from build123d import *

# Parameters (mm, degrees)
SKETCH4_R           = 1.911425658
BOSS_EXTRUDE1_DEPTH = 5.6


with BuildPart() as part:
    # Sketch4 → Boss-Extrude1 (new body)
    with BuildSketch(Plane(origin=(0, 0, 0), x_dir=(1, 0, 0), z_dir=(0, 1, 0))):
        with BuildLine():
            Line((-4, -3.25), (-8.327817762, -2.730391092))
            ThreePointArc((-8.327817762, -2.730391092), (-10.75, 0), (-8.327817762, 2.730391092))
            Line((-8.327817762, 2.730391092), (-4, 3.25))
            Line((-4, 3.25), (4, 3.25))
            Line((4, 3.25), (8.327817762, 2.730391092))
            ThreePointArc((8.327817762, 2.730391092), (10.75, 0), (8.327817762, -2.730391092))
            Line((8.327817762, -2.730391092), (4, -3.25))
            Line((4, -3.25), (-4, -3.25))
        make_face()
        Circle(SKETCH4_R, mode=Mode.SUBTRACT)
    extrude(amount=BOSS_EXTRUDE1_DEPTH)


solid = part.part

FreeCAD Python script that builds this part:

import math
import FreeCAD as App
import Part
import Sketcher

V = App.Vector

doc = App.newDocument("Part")
body = doc.addObject("PartDesign::Body", "Body")

sketch1 = doc.addObject("Sketcher::SketchObject", "Sketch")
body.addObject(sketch1)
sketch1.AttachmentSupport = (doc.XZ_Plane, [""])
sketch1.MapMode = "FlatFace"
sketch1.addGeometry(Part.LineSegment(V(-8.3, 2.7, 0), V(-4, 3.2, 0)), False)
sketch1.addGeometry(Part.LineSegment(V(-4, 3.2, 0), V(4, 3.2, 0)), False)
sketch1.addGeometry(Part.LineSegment(V(4, 3.2, 0), V(8.3, 2.7, 0)), False)
sketch1.addGeometry(Part.ArcOfCircle(Part.Circle(V(8, 0, 0), V(0, 0, 1), 2.8), math.radians(-83), math.radians(83)), False)
sketch1.addGeometry(Part.LineSegment(V(8.3, -2.7, 0), V(4, -3.2, 0)), False)
sketch1.addGeometry(Part.LineSegment(V(4, -3.2, 0), V(-4, -3.2, 0)), False)
sketch1.addGeometry(Part.LineSegment(V(-4, -3.2, 0), V(-8.3, -2.7, 0)), False)
sketch1.addGeometry(Part.ArcOfCircle(Part.Circle(V(-8, 0, 0), V(0, 0, 1), 2.8), math.radians(97), math.radians(263)), False)
sketch1.addGeometry(Part.Circle(V(0, 0, 0), V(0, 0, 1), 1.9), False)
sketch1.addConstraint(Sketcher.Constraint("Coincident", 0, 2, 1, 1))
sketch1.addConstraint(Sketcher.Constraint("Coincident", 1, 2, 2, 1))
sketch1.addConstraint(Sketcher.Constraint("Tangent", 2, 2, 3, 2))
sketch1.addConstraint(Sketcher.Constraint("Tangent", 3, 1, 4, 1))
sketch1.addConstraint(Sketcher.Constraint("Coincident", 4, 2, 5, 1))
sketch1.addConstraint(Sketcher.Constraint("Coincident", 5, 2, 6, 1))
sketch1.addConstraint(Sketcher.Constraint("Tangent", 6, 2, 7, 2))
sketch1.addConstraint(Sketcher.Constraint("Tangent", 7, 1, 0, 1))
sketch1.addConstraint(Sketcher.Constraint("Horizontal", 1))
sketch1.addConstraint(Sketcher.Constraint("Horizontal", 5))
sketch1.addConstraint(Sketcher.Constraint("Coincident", 8, 3, -1, 1))
sketch1.addConstraint(Sketcher.Constraint("Equal", 3, 7))
sketch1.addConstraint(Sketcher.Constraint("Symmetric", 3, 3, 7, 3, -1, 1))
sketch1.addConstraint(Sketcher.Constraint("Symmetric", 0, 2, 4, 2, -1, 1))
sketch1.addConstraint(Sketcher.Constraint("Symmetric", 3, 1, 6, 2, -2))
sketch1.addConstraint(Sketcher.Constraint("Parallel", 2, 6))
sketch1.addConstraint(Sketcher.Constraint("DistanceX", 1, 1, 1, 2, 8.0))
sketch1.addConstraint(Sketcher.Constraint("Radius", 3, 2.75))
sketch1.addConstraint(Sketcher.Constraint("DistanceX", -1, 1, 3, 3, 8.0))
sketch1.addConstraint(Sketcher.Constraint("DistanceY", 4, 2, 1, 2, 6.5))
sketch1.addConstraint(Sketcher.Constraint("Diameter", 8, 3.822851))
pad1 = doc.addObject("PartDesign::Pad", "Pad")
body.addObject(pad1)
pad1.Profile = sketch1
pad1.Length = 5.6
pad1.Reversed = True

doc.recompute()
